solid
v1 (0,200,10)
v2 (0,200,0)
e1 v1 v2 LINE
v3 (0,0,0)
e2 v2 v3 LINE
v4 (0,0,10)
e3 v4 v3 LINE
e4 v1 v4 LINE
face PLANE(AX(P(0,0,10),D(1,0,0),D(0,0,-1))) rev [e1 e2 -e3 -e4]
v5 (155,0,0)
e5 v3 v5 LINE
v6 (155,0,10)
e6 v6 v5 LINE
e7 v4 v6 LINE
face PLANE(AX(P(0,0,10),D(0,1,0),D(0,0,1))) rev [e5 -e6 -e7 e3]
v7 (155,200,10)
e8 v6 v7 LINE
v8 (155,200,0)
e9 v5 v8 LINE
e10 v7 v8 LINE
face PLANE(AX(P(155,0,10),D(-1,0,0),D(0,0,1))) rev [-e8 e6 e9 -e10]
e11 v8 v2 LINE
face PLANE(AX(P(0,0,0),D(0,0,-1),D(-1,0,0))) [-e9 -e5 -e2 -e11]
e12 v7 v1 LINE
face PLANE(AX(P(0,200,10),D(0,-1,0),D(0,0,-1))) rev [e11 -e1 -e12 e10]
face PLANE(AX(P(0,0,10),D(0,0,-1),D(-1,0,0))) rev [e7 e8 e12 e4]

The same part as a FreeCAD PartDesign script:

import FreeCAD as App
import Part
import Sketcher
from FreeCAD import Vector


def add_polygon(sketch, points):
    """Adds a closed chain of lines whose ends are joined by coincident constraints."""
    first, n = sketch.GeometryCount, len(points)
    for a, b in zip(points, points[1:] + points[:1]):
        sketch.addGeometry(Part.LineSegment(App.Vector(*a, 0), App.Vector(*b, 0)), False)
    for i in range(n):
        sketch.addConstraint(Sketcher.Constraint("Coincident", first + i, 2, first + (i + 1) % n, 1))

doc = App.newDocument("Part")
body = doc.addObject("PartDesign::Body", "Body")

sketch1 = body.newObject("Sketcher::SketchObject", "Sketch")
sketch1.AttachmentSupport = (doc.getObject("XY_Plane"), [""])
sketch1.MapMode = "FlatFace"
add_polygon(sketch1, [(0, 200), (0, 0), (155, 0), (155, 200)])
sketch1.addConstraint(Sketcher.Constraint("Vertical", 0))
sketch1.addConstraint(Sketcher.Constraint("Horizontal", 1))
sketch1.addConstraint(Sketcher.Constraint("Vertical", 2))
sketch1.addConstraint(Sketcher.Constraint("Horizontal", 3))
sketch1.addConstraint(Sketcher.Constraint("Coincident", 0, 2, -1, 1))
sketch1.addConstraint(Sketcher.Constraint("DistanceX", 1, 1, 1, 2, 155.0))
sketch1.addConstraint(Sketcher.Constraint("DistanceY", 0, 2, 0, 1, 200.0))
pad1 = body.newObject("PartDesign::Pad", "Pad")
pad1.Profile = sketch1
pad1.Length = 10

doc.recompute()
